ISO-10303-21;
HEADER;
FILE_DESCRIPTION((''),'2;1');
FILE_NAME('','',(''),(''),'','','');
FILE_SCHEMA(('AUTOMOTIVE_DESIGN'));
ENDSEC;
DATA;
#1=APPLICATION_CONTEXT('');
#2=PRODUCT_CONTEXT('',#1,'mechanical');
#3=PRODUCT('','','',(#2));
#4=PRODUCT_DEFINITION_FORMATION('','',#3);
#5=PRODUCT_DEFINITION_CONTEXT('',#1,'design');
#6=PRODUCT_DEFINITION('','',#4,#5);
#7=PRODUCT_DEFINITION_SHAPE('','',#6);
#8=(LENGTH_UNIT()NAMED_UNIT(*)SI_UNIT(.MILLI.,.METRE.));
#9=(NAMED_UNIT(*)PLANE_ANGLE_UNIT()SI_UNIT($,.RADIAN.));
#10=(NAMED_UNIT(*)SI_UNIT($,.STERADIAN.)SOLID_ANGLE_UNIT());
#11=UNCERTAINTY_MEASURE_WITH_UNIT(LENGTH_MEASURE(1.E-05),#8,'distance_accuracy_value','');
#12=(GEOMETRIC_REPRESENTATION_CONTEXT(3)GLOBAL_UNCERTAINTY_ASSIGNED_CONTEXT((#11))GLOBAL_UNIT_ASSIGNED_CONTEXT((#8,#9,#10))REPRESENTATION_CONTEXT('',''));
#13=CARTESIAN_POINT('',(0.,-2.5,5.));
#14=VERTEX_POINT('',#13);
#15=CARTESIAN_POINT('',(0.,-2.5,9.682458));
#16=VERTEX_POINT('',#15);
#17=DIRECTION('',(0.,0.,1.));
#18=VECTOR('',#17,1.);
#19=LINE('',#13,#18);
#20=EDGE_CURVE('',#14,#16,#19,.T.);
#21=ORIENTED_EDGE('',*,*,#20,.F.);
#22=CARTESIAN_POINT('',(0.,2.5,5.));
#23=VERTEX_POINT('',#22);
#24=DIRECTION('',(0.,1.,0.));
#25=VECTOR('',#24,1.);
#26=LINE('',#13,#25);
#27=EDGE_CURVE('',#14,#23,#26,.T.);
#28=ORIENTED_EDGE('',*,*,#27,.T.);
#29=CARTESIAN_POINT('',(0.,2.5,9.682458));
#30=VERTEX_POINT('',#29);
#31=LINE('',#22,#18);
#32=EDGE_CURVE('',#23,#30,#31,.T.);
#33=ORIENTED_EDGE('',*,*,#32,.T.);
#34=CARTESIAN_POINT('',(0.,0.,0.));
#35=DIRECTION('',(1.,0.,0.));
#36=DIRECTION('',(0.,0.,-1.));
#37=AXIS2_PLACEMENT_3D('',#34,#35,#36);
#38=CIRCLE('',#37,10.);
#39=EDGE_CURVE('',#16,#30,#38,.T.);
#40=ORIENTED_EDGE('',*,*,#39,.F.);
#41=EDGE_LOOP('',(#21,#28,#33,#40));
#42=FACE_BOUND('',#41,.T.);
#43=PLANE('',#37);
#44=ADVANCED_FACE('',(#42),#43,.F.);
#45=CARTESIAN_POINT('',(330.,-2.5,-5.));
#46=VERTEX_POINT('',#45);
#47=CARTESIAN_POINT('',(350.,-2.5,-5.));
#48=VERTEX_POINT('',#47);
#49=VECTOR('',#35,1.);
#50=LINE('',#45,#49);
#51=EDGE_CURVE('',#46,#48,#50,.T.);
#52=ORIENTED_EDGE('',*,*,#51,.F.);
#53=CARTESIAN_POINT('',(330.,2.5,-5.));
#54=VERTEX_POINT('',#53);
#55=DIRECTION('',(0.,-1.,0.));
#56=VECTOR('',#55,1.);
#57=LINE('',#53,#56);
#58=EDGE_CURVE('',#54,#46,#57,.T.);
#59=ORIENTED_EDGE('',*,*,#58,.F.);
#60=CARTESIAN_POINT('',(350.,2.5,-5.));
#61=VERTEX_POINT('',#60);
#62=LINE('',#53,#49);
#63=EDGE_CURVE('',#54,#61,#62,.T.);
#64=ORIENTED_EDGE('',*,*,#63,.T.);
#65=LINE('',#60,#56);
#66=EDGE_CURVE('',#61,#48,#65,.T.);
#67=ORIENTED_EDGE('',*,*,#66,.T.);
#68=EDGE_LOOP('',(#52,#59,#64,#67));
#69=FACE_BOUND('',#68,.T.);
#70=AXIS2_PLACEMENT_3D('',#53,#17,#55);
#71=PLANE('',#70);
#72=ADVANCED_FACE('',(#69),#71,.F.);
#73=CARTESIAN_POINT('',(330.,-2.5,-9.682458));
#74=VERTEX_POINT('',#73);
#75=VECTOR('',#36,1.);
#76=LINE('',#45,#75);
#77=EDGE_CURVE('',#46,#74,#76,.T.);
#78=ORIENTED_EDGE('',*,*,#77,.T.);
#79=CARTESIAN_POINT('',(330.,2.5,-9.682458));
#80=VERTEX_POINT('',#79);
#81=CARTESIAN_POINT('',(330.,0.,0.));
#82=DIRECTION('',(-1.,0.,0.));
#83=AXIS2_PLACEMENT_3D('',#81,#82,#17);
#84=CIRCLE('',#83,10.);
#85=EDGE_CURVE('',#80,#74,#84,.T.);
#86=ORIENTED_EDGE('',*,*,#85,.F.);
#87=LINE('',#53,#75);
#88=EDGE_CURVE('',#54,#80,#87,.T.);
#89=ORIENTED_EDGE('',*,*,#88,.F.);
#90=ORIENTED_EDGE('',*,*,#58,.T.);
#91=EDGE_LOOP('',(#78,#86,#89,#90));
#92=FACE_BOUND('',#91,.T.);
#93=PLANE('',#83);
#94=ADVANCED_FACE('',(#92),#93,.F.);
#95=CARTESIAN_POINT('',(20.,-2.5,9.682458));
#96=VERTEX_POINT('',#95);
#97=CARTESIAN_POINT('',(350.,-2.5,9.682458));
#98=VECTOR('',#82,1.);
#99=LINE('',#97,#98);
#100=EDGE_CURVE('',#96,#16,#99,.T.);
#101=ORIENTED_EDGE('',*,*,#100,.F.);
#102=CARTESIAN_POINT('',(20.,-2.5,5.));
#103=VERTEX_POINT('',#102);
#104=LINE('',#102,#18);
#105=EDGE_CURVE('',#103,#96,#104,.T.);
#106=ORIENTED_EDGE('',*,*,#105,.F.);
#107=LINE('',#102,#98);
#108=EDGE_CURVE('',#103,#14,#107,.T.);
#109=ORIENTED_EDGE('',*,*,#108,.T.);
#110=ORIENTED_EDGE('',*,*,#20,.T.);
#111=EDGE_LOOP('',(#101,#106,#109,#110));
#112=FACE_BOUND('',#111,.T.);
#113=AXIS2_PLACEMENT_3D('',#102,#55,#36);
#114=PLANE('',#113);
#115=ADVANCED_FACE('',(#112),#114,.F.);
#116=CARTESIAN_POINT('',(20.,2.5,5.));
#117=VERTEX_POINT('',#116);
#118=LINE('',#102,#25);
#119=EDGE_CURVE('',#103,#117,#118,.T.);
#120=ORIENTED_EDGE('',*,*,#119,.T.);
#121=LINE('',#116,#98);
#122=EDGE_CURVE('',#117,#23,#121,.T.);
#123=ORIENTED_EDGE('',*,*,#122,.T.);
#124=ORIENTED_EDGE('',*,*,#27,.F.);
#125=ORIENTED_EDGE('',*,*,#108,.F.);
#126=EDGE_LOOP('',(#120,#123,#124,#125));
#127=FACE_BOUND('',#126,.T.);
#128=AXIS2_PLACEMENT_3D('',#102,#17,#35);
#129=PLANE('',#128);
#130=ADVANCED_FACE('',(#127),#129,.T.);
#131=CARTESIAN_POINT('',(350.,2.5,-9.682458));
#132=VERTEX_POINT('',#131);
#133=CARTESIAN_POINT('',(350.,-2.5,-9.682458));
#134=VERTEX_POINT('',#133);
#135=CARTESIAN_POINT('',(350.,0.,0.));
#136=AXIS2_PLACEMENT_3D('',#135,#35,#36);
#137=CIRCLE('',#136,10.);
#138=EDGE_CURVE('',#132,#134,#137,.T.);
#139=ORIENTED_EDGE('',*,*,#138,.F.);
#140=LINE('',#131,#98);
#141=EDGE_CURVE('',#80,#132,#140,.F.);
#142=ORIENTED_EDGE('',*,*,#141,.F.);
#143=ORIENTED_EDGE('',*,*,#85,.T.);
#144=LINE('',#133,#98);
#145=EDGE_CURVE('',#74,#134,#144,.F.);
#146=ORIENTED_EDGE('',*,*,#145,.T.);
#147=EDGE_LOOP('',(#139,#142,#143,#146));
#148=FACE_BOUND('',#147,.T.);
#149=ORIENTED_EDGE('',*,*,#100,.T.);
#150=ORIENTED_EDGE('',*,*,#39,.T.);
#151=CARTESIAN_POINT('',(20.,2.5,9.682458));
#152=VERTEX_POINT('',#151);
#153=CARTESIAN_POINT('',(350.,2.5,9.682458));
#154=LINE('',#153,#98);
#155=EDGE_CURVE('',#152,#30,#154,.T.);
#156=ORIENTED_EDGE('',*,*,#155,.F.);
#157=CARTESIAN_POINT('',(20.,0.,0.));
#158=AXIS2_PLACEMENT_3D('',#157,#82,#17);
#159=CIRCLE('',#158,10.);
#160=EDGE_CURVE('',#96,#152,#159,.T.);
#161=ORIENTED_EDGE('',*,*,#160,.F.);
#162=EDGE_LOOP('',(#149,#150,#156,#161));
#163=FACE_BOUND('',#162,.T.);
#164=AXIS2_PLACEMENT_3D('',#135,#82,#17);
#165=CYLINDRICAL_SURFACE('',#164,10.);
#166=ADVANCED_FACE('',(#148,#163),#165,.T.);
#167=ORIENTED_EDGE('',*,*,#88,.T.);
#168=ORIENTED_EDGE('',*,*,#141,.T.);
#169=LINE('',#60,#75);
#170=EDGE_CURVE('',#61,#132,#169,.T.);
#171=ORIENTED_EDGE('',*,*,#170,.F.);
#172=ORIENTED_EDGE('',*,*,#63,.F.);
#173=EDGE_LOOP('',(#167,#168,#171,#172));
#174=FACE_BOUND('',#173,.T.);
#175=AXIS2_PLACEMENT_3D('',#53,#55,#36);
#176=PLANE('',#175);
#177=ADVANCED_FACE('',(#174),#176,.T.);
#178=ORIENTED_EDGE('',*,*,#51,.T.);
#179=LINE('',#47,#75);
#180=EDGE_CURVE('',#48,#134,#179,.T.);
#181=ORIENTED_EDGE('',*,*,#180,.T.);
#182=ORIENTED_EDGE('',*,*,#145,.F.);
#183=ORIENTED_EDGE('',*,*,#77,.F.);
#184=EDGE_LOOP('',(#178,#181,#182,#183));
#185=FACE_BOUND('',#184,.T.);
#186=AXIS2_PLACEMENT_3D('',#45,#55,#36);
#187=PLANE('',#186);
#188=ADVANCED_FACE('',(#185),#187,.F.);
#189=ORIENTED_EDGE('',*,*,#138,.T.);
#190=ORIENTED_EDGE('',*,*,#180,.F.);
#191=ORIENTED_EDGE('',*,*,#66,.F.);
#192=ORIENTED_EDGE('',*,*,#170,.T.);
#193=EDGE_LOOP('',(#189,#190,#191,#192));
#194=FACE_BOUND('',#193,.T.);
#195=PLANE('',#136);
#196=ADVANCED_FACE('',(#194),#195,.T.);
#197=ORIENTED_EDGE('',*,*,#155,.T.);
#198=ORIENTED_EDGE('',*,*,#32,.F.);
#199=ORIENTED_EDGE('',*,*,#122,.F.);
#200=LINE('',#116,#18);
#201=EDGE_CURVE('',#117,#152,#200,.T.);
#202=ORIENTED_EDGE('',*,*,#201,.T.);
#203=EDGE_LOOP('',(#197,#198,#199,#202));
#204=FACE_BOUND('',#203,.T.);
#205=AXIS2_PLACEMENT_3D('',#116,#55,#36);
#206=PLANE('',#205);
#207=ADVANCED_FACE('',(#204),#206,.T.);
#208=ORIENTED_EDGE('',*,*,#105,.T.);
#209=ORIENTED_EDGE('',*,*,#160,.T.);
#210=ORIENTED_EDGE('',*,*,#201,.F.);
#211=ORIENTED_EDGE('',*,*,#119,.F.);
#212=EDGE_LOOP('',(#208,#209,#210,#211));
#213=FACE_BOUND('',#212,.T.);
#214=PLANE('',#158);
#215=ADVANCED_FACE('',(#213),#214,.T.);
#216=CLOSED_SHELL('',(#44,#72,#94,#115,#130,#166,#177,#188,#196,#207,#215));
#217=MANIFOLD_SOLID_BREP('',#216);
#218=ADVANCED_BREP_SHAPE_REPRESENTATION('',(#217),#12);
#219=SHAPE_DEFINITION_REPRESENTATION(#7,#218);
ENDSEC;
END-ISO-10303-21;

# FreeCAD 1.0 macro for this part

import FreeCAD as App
import Part
import Sketcher
Q = App.Units.Quantity


def add_polygon(sketch, points):
    """Adds a closed chain of lines whose ends are joined by coincident constraints."""
    first, n = sketch.GeometryCount, len(points)
    for a, b in zip(points, points[1:] + points[:1]):
        sketch.addGeometry(Part.LineSegment(App.Vector(*a, 0), App.Vector(*b, 0)), False)
    for i in range(n):
        sketch.addConstraint(Sketcher.Constraint("Coincident", first + i, 2, first + (i + 1) % n, 1))

doc = App.newDocument("Part")
body = doc.addObject("PartDesign::Body", "Body")

# Sketch on YZ plane
sketch1 = body.newObject("Sketcher::SketchObject", "Sketch")
sketch1.AttachmentSupport = (doc.getObject("YZ_Plane"), [""])
sketch1.MapMode = "FlatFace"
sketch1.addGeometry(Part.Circle(App.Vector(0, 0, 0), App.Vector(0, 0, 1), 10), False)
sketch1.addConstraint(Sketcher.Constraint("Coincident", 0, 3, -1, 1))
sketch1.addConstraint(Sketcher.Constraint("Diameter", 0, Q("20 mm")))
pad1 = body.newObject("PartDesign::Pad", "Pad")
pad1.Profile = sketch1
pad1.Length = 350

# Sketch on YZ plane
sketch2 = body.newObject("Sketcher::SketchObject", "Sketch001")
sketch2.AttachmentSupport = (doc.getObject("YZ_Plane"), [""])
sketch2.MapMode = "FlatFace"
add_polygon(sketch2, [(2.5, 5), (-2.5, 5), (-2.5, 15), (2.5, 15)])  # lines 0-3
sketch2.addConstraint(Sketcher.Constraint("Horizontal", 0))
sketch2.addConstraint(Sketcher.Constraint("Vertical", 1))
sketch2.addConstraint(Sketcher.Constraint("Horizontal", 2))
sketch2.addConstraint(Sketcher.Constraint("Vertical", 3))
sketch2.addConstraint(Sketcher.Constraint("DistanceX", 0, 2, 0, 1, Q("5 mm")))
sketch2.addConstraint(Sketcher.Constraint("DistanceY", 1, 1, 1, 2, Q("10 mm")))
sketch2.addConstraint(Sketcher.Constraint("DistanceY", -1, 1, 0, 2, Q("5 mm")))
sketch2.addConstraint(Sketcher.Constraint("DistanceX", 0, 2, -1, 1, Q("2.5 mm")))
pocket1 = body.newObject("PartDesign::Pocket", "Pocket")
pocket1.Profile = sketch2
pocket1.Length = 20
pocket1.Reversed = True

# Sketch on YZ plane
sketch3 = body.newObject("Sketcher::SketchObject", "Sketch002")
sketch3.AttachmentSupport = (doc.getObject("YZ_Plane"), [""])
sketch3.MapMode = "FlatFace"
sketch3.AttachmentOffset = App.Placement(App.Vector(0, 0, 350), App.Rotation())
add_polygon(sketch3, [(2.5, -5), (-2.5, -5), (-2.5, -15), (2.5, -15)])  # lines 0-3
sketch3.addConstraint(Sketcher.Constraint("Horizontal", 0))
sketch3.addConstraint(Sketcher.Constraint("Vertical", 1))
sketch3.addConstraint(Sketcher.Constraint("Horizontal", 2))
sketch3.addConstraint(Sketcher.Constraint("Vertical", 3))
sketch3.addConstraint(Sketcher.Constraint("DistanceX", 0, 2, 0, 1, Q("5 mm")))
sketch3.addConstraint(Sketcher.Constraint("DistanceY", 1, 2, 1, 1, Q("10 mm")))
sketch3.addConstraint(Sketcher.Constraint("DistanceY", 0, 2, -1, 1, Q("5 mm")))
sketch3.addConstraint(Sketcher.Constraint("DistanceX", 0, 2, -1, 1, Q("2.5 mm")))
pocket2 = body.newObject("PartDesign::Pocket", "Pocket001")
pocket2.Profile = sketch3
pocket2.Length = 20

doc.recompute()
